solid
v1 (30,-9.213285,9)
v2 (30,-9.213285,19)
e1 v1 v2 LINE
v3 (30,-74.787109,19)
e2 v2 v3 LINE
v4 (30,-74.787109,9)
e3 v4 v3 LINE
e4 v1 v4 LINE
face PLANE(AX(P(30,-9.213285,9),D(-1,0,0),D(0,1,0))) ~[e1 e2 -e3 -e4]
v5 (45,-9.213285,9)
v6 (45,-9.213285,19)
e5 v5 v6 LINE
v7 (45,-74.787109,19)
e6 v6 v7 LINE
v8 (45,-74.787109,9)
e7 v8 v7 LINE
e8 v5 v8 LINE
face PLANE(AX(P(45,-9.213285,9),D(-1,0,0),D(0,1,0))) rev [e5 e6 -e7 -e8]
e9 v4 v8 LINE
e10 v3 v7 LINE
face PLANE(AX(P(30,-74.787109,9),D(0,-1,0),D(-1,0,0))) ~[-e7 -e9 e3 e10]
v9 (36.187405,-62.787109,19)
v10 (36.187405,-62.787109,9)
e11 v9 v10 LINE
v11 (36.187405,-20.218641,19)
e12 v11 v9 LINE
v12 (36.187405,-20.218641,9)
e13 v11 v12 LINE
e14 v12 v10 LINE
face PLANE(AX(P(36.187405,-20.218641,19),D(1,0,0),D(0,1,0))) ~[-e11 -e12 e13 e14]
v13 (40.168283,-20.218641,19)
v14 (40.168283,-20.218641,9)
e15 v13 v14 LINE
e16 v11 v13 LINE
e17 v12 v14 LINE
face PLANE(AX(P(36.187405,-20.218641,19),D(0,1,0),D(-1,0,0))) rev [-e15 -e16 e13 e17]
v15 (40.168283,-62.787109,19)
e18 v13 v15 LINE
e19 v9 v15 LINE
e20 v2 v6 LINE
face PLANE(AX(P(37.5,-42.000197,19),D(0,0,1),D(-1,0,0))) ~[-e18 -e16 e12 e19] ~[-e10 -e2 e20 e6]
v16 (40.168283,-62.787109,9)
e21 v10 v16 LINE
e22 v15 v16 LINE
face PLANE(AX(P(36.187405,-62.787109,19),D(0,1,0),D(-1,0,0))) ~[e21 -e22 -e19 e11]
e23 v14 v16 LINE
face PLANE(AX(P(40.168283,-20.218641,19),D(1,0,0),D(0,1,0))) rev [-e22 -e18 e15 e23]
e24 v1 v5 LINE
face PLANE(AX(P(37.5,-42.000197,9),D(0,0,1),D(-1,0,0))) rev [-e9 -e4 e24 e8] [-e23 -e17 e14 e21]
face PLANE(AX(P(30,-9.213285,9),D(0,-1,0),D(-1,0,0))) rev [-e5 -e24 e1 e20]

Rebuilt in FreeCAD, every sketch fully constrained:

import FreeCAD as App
import Part
import Sketcher

V = App.Vector

doc = App.newDocument("Part")
body = doc.addObject("PartDesign::Body", "Body")

# Sketch on XY plane
sketch1 = body.newObject("Sketcher::SketchObject", "Sketch")
sketch1.AttachmentSupport = (doc.getObject("XY_Plane"), [""])
sketch1.MapMode = "FlatFace"
sketch1.AttachmentOffset = App.Placement(V(0, 0, 9), App.Rotation())
sketch1.addGeometry(Part.LineSegment(V(30, 75, 0), V(30, 9, 0)), False)
sketch1.addGeometry(Part.LineSegment(V(30, 9, 0), V(45, 9, 0)), False)
sketch1.addGeometry(Part.LineSegment(V(45, 9, 0), V(45, 75, 0)), False)
sketch1.addGeometry(Part.LineSegment(V(45, 75, 0), V(30, 75, 0)), False)
sketch1.addConstraint(Sketcher.Constraint("Coincident", 0, 2, 1, 1))
sketch1.addConstraint(Sketcher.Constraint("Coincident", 1, 2, 2, 1))
sketch1.addConstraint(Sketcher.Constraint("Coincident", 2, 2, 3, 1))
sketch1.addConstraint(Sketcher.Constraint("Coincident", 3, 2, 0, 1))
sketch1.addConstraint(Sketcher.Constraint("Vertical", 0))
sketch1.addConstraint(Sketcher.Constraint("Horizontal", 1))
sketch1.addConstraint(Sketcher.Constraint("Vertical", 2))
sketch1.addConstraint(Sketcher.Constraint("Horizontal", 3))
sketch1.addConstraint(Sketcher.Constraint("DistanceX", 1, 1, 1, 2, 15.0))
sketch1.addConstraint(Sketcher.Constraint("DistanceX", -1, 1, 0, 2, 30.0))
sketch1.addConstraint(Sketcher.Constraint("DistanceY", 0, 2, 0, 1, 65.573825))
sketch1.addConstraint(Sketcher.Constraint("DistanceY", -1, 1, 2, 2, 74.787109))
pad1 = body.newObject("PartDesign::Pad", "Pad")
pad1.Profile = sketch1
pad1.Length = 10

# Sketch on XY plane
sketch2 = body.newObject("Sketcher::SketchObject", "Sketch001")
sketch2.AttachmentSupport = (doc.getObject("XY_Plane"), [""])
sketch2.MapMode = "FlatFace"
sketch2.AttachmentOffset = App.Placement(V(0, 0, 19), App.Rotation())
sketch2.addGeometry(Part.LineSegment(V(36.2, 62.8, 0), V(36.2, 20.2, 0)), False)
sketch2.addGeometry(Part.LineSegment(V(36.2, 20.2, 0), V(40.2, 20.2, 0)), False)
sketch2.addGeometry(Part.LineSegment(V(40.2, 20.2, 0), V(40.2, 62.8, 0)), False)
sketch2.addGeometry(Part.LineSegment(V(40.2, 62.8, 0), V(36.2, 62.8, 0)), False)
sketch2.addConstraint(Sketcher.Constraint("Coincident", 0, 2, 1, 1))
sketch2.addConstraint(Sketcher.Constraint("Coincident", 1, 2, 2, 1))
sketch2.addConstraint(Sketcher.Constraint("Coincident", 2, 2, 3, 1))
sketch2.addConstraint(Sketcher.Constraint("Coincident", 3, 2, 0, 1))
sketch2.addConstraint(Sketcher.Constraint("Vertical", 0))
sketch2.addConstraint(Sketcher.Constraint("Horizontal", 1))
sketch2.addConstraint(Sketcher.Constraint("Vertical", 2))
sketch2.addConstraint(Sketcher.Constraint("Horizontal", 3))
sketch2.addConstraint(Sketcher.Constraint("DistanceX", 1, 1, 1, 2, 3.980878))
sketch2.addConstraint(Sketcher.Constraint("DistanceY", 0, 2, 0, 1, 42.568468))
sketch2.addConstraint(Sketcher.Constraint("DistanceY", -1, 1, 0, 2, 20.218641))
sketch2.addConstraint(Sketcher.Constraint("DistanceX", -1, 1, 0, 2, 36.187405))
pocket1 = body.newObject("PartDesign::Pocket", "Pocket")
pocket1.Profile = sketch2
pocket1.Type = "ThroughAll"
body2 = doc.addObject("PartDesign::Body", "Body001")
doc.recompute()

mirroring = doc.addObject("Part::Mirroring", "Mirroring")
mirroring.Source = body
mirroring.Base = V(0, 0, 0)
mirroring.Normal = V(0, 1, 0)
body2.BaseFeature = mirroring
doc.recompute()
body.Visibility = False
mirroring.Visibility = False

doc.recompute()
